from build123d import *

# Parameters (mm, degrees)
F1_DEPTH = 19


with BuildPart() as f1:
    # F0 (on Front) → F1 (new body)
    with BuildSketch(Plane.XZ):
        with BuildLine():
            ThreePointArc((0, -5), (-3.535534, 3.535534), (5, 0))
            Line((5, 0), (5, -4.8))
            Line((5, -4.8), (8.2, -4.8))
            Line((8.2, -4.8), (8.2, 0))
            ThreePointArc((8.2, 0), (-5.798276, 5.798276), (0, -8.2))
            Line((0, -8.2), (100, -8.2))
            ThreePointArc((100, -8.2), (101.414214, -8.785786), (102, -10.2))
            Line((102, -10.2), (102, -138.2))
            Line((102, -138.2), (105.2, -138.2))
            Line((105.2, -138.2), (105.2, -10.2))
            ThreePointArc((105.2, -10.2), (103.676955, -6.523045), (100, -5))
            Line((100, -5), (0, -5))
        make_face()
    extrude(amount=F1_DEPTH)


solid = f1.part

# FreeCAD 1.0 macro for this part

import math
import FreeCAD as App
import Part
import Sketcher
Q = App.Units.Quantity

doc = App.newDocument("Part")
params = doc.addObject("Spreadsheet::Sheet", "Params")
for row, (alias, value) in enumerate([
    ("sketch1_radius", "5 mm"),
    ("sketch1_radius2", "1.999999 mm"),
    ("sketch1_radius3", "8.2 mm"),
    ("sketch1_width", "100 mm"),
    ("sketch1_height", "128 mm"),
    ("pad1_length", "19 mm"),
], start=1):
    params.set(f"A{row}", alias)
    params.set(f"B{row}", "=" + value)
    params.setAlias(f"B{row}", alias)

body = doc.addObject("PartDesign::Body", "Body")

# Sketch on XZ plane
sketch1 = doc.addObject("Sketcher::SketchObject", "Sketch")
body.addObject(sketch1)
sketch1.AttachmentSupport = (doc.XZ_Plane, [""])
sketch1.MapMode = "FlatFace"
sketch1.addGeometry(Part.ArcOfCircle(Part.Circle(App.Vector(0, 0, 0), App.Vector(0, 0, 1), 5), math.radians(0), math.radians(270)), False)
sketch1.addGeometry(Part.LineSegment(App.Vector(5, 0, 0), App.Vector(5, -4.8, 0)), False)
sketch1.addGeometry(Part.LineSegment(App.Vector(5, -4.8, 0), App.Vector(8.2, -4.8, 0)), False)
sketch1.addGeometry(Part.LineSegment(App.Vector(8.2, -4.8, 0), App.Vector(8.2, 0, 0)), False)
sketch1.addGeometry(Part.ArcOfCircle(Part.Circle(App.Vector(0, 0, 0), App.Vector(0, 0, 1), 8.2), math.radians(0), math.radians(270)), False)
sketch1.addGeometry(Part.LineSegment(App.Vector(0, -8.2, 0), App.Vector(100, -8.2, 0)), False)
sketch1.addGeometry(Part.ArcOfCircle(Part.Circle(App.Vector(100, -10.2, 0), App.Vector(0, 0, 1), 2), math.radians(0), math.radians(90)), False)
sketch1.addGeometry(Part.LineSegment(App.Vector(102, -10.2, 0), App.Vector(102, -138.2, 0)), False)
sketch1.addGeometry(Part.LineSegment(App.Vector(102, -138.2, 0), App.Vector(105.2, -138.2, 0)), False)
sketch1.addGeometry(Part.LineSegment(App.Vector(105.2, -138.2, 0), App.Vector(105.2, -10.2, 0)), False)
sketch1.addGeometry(Part.ArcOfCircle(Part.Circle(App.Vector(100, -10.2, 0), App.Vector(0, 0, 1), 5.2), math.radians(0), math.radians(90)), False)
sketch1.addGeometry(Part.LineSegment(App.Vector(100, -5, 0), App.Vector(0, -5, 0)), False)
sketch1.addConstraint(Sketcher.Constraint("Tangent", 0, 1, 1, 1))
sketch1.addConstraint(Sketcher.Constraint("Coincident", 1, 2, 2, 1))
sketch1.addConstraint(Sketcher.Constraint("Coincident", 2, 2, 3, 1))
sketch1.addConstraint(Sketcher.Constraint("Tangent", 3, 2, 4, 1))
sketch1.addConstraint(Sketcher.Constraint("Tangent", 4, 2, 5, 1))
sketch1.addConstraint(Sketcher.Constraint("Tangent", 5, 2, 6, 2))
sketch1.addConstraint(Sketcher.Constraint("Tangent", 6, 1, 7, 1))
sketch1.addConstraint(Sketcher.Constraint("Coincident", 7, 2, 8, 1))
sketch1.addConstraint(Sketcher.Constraint("Coincident", 8, 2, 9, 1))
sketch1.addConstraint(Sketcher.Constraint("Tangent", 9, 2, 10, 1))
sketch1.addConstraint(Sketcher.Constraint("Tangent", 10, 2, 11, 1))
sketch1.addConstraint(Sketcher.Constraint("Tangent", 11, 2, 0, 2))
sketch1.addConstraint(Sketcher.Constraint("Vertical", 1))
sketch1.addConstraint(Sketcher.Constraint("Horizontal", 2))
sketch1.addConstraint(Sketcher.Constraint("Vertical", 3))
sketch1.addConstraint(Sketcher.Constraint("Horizontal", 5))
sketch1.addConstraint(Sketcher.Constraint("Vertical", 7))
sketch1.addConstraint(Sketcher.Constraint("Horizontal", 8))
sketch1.addConstraint(Sketcher.Constraint("Vertical", 9))
sketch1.addConstraint(Sketcher.Constraint("Horizontal", 11))
sketch1.addConstraint(Sketcher.Constraint("Coincident", 0, 3, -1, 1))
sketch1.addConstraint(Sketcher.Constraint("Coincident", 4, 3, -1, 1))
sketch1.addConstraint(Sketcher.Constraint("Coincident", 10, 3, 6, 3))
sketch1.addConstraint(Sketcher.Constraint("Radius", 0, Q("5 mm")))
sketch1.addConstraint(Sketcher.Constraint("Radius", 6, Q("1.999999 mm")))
sketch1.addConstraint(Sketcher.Constraint("Radius", 4, Q("8.2 mm")))
sketch1.addConstraint(Sketcher.Constraint("DistanceX", 5, 1, 5, 2, Q("100 mm")))
sketch1.addConstraint(Sketcher.Constraint("DistanceY", 7, 2, 7, 1, Q("128 mm")))
sketch1.addConstraint(Sketcher.Constraint("DistanceY", 1, 2, 1, 1, Q("4.8 mm")))
sketch1.setExpression("Constraints[23]", "Params.sketch1_radius")
sketch1.setExpression("Constraints[24]", "Params.sketch1_radius2")
sketch1.setExpression("Constraints[25]", "Params.sketch1_radius3")
sketch1.setExpression("Constraints[26]", "Params.sketch1_width")
sketch1.setExpression("Constraints[27]", "Params.sketch1_height")
pad1 = doc.addObject("PartDesign::Pad", "Pad")
body.addObject(pad1)
pad1.Profile = sketch1
pad1.setExpression("Length", "Params.pad1_length")

doc.recompute()
